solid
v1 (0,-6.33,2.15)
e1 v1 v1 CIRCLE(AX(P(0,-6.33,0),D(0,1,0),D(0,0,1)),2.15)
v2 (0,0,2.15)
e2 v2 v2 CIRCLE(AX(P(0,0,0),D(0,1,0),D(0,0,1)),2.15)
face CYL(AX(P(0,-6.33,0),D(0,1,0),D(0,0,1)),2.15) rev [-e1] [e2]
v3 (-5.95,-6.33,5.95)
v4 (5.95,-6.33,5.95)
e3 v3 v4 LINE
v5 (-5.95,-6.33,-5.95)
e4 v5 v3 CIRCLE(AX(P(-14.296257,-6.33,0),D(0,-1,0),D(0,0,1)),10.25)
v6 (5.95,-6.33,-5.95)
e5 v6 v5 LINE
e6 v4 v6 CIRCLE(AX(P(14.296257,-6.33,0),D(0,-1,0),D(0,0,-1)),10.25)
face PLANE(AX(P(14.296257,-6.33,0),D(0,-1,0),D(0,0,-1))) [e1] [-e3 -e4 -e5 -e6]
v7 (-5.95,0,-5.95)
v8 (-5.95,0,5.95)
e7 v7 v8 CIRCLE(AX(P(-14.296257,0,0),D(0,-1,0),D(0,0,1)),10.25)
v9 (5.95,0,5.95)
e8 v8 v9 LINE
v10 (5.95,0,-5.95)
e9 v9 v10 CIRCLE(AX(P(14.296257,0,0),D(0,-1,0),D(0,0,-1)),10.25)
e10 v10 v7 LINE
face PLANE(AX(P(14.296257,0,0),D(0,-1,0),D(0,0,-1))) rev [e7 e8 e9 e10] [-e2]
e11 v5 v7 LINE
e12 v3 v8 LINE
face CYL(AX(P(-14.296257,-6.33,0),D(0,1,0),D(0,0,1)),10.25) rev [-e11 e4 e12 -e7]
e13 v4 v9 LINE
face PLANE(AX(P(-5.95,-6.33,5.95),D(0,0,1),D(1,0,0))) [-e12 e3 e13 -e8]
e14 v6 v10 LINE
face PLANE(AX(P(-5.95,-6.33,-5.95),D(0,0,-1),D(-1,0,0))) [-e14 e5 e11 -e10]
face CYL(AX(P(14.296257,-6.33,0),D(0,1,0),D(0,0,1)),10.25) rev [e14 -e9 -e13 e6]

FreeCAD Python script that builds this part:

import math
import FreeCAD as App
import Part
import Sketcher

V = App.Vector
Q = App.Units.Quantity

doc = App.newDocument("Part")
body = doc.addObject("PartDesign::Body", "Body")

sketch1 = body.newObject("Sketcher::SketchObject", "Sketch")
sketch1.AttachmentSupport = (doc.getObject("XZ_Plane"), [""])
sketch1.MapMode = "FlatFace"
sketch1.addGeometry([
    Part.LineSegment(V(-6, 6, 0), V(6, 6, 0)),
    Part.ArcOfCircle(Part.Circle(V(14, 0, 0), V(0, 0, 1), 10), math.radians(145), math.radians(215)),
    Part.LineSegment(V(6, -6, 0), V(-6, -6, 0)),
    Part.ArcOfCircle(Part.Circle(V(-14, 0, 0), V(0, 0, 1), 10), math.radians(-35), math.radians(35)),
], False)
sketch1.addConstraint([
    Sketcher.Constraint("Coincident", 0, 2, 1, 1),
    Sketcher.Constraint("Coincident", 1, 2, 2, 1),
    Sketcher.Constraint("Coincident", 2, 2, 3, 1),
    Sketcher.Constraint("Coincident", 3, 2, 0, 1),
    Sketcher.Constraint("Horizontal", 0),
    Sketcher.Constraint("Horizontal", 2),
    Sketcher.Constraint("Equal", 1, 3),
    Sketcher.Constraint("Symmetric", 1, 3, 3, 3, -1, 1),
    Sketcher.Constraint("Symmetric", 0, 2, 1, 2, -1),
    Sketcher.Constraint("Radius", 1, Q("10.25 mm")),
    Sketcher.Constraint("DistanceX", 0, 1, 0, 2, Q("11.9 mm")),
    Sketcher.Constraint("DistanceY", 1, 2, 0, 2, Q("11.9 mm")),
])
pad1 = body.newObject("PartDesign::Pad", "Pad")
pad1.Profile = sketch1
pad1.Length = 6.33

sketch2 = body.newObject("Sketcher::SketchObject", "Sketch001")
sketch2.AttachmentSupport = (doc.getObject("XZ_Plane"), [""])
sketch2.MapMode = "FlatFace"
sketch2.addGeometry(Part.Circle(V(0, 0, 0), V(0, 0, 1), 2.1), False)
sketch2.addConstraint([
    Sketcher.Constraint("Coincident", 0, 3, -1, 1),
    Sketcher.Constraint("Diameter", 0, Q("4.3 mm")),
])
pocket1 = body.newObject("PartDesign::Pocket", "Pocket")
pocket1.Profile = sketch2
pocket1.Type = "ThroughAll"
pocket1.Reversed = True

doc.recompute()
